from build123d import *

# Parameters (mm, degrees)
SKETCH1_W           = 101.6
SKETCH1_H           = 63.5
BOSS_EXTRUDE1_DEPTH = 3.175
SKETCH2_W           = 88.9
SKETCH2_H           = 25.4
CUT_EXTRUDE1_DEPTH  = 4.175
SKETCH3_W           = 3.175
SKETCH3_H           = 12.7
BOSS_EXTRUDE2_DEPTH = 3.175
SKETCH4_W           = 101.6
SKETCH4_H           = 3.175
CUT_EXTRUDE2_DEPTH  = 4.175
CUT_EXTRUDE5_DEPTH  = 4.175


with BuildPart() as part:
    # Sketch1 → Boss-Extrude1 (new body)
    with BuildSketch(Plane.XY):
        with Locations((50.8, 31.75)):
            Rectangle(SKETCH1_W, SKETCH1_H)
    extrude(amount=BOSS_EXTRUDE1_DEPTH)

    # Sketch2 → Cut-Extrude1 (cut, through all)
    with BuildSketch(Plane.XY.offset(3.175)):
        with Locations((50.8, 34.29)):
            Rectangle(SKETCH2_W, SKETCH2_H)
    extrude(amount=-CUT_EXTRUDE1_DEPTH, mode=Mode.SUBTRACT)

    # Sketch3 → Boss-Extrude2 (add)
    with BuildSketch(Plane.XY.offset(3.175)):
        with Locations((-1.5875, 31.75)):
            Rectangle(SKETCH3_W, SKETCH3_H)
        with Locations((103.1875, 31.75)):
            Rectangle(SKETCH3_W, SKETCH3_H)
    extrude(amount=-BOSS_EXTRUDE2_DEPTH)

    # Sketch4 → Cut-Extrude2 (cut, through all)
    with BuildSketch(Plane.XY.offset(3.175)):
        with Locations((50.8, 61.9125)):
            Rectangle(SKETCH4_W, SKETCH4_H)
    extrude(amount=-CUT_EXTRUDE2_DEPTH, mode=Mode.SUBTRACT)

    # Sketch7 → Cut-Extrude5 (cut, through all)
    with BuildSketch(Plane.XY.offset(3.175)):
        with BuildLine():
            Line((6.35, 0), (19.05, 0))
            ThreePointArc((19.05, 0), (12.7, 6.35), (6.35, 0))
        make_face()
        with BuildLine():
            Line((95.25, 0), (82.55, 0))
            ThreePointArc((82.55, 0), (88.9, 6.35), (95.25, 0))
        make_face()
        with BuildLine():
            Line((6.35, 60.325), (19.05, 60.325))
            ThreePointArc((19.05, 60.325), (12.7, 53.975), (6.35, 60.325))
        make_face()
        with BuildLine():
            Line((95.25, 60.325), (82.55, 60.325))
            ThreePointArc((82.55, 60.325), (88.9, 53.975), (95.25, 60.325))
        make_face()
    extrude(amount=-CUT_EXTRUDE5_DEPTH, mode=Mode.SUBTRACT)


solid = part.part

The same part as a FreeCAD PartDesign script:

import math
import FreeCAD as App
import Part
import Sketcher

V = App.Vector
Q = App.Units.Quantity


def add_polygon(sketch, points):
    """Adds a closed chain of lines whose ends are joined by coincident constraints."""
    first, n = sketch.GeometryCount, len(points)
    for a, b in zip(points, points[1:] + points[:1]):
        sketch.addGeometry(Part.LineSegment(App.Vector(*a, 0), App.Vector(*b, 0)), False)
    for i in range(n):
        sketch.addConstraint(Sketcher.Constraint("Coincident", first + i, 2, first + (i + 1) % n, 1))

doc = App.newDocument("Part")
body = doc.addObject("PartDesign::Body", "Body")

sketch1 = doc.addObject("Sketcher::SketchObject", "Sketch")
body.addObject(sketch1)
sketch1.AttachmentSupport = (doc.XY_Plane, [""])
sketch1.MapMode = "FlatFace"
add_polygon(sketch1, [(0, 64), (0, 0), (102, 0), (102, 64)])
sketch1.addConstraint(Sketcher.Constraint("Vertical", 0))
sketch1.addConstraint(Sketcher.Constraint("Horizontal", 1))
sketch1.addConstraint(Sketcher.Constraint("Vertical", 2))
sketch1.addConstraint(Sketcher.Constraint("Horizontal", 3))
sketch1.addConstraint(Sketcher.Constraint("Coincident", 0, 2, -1, 1))
sketch1.addConstraint(Sketcher.Constraint("DistanceX", 1, 1, 1, 2, Q("4 in")))
sketch1.addConstraint(Sketcher.Constraint("DistanceY", 0, 2, 0, 1, Q("2.5 in")))
pad1 = doc.addObject("PartDesign::Pad", "Pad")
body.addObject(pad1)
pad1.Profile = sketch1
pad1.Length = Q("0.125 in")

sketch2 = doc.addObject("Sketcher::SketchObject", "Sketch001")
body.addObject(sketch2)
sketch2.AttachmentSupport = (doc.XY_Plane, [""])
sketch2.MapMode = "FlatFace"
sketch2.AttachmentOffset = App.Placement(V(0, 0, 0.125 * 25.4), App.Rotation())
add_polygon(sketch2, [(6, 47), (6, 22), (95, 22), (95, 47)])
sketch2.addConstraint(Sketcher.Constraint("Vertical", 0))
sketch2.addConstraint(Sketcher.Constraint("Horizontal", 1))
sketch2.addConstraint(Sketcher.Constraint("Vertical", 2))
sketch2.addConstraint(Sketcher.Constraint("Horizontal", 3))
sketch2.addConstraint(Sketcher.Constraint("DistanceY", 0, 2, 0, 1, Q("1 in")))
sketch2.addConstraint(Sketcher.Constraint("DistanceX", 1, 1, 1, 2, Q("3.5 in")))
sketch2.addConstraint(Sketcher.Constraint("DistanceX", -1, 1, 0, 2, Q("0.25 in")))
sketch2.addConstraint(Sketcher.Constraint("DistanceY", -1, 1, 0, 2, Q("0.85 in")))
pocket1 = doc.addObject("PartDesign::Pocket", "Pocket")
body.addObject(pocket1)
pocket1.Profile = sketch2
pocket1.Type = "ThroughAll"

sketch3 = doc.addObject("Sketcher::SketchObject", "Sketch002")
body.addObject(sketch3)
sketch3.AttachmentSupport = (doc.XY_Plane, [""])
sketch3.MapMode = "FlatFace"
sketch3.AttachmentOffset = App.Placement(V(0, 0, 0.125 * 25.4), App.Rotation())
add_polygon(sketch3, [(-3.2, 38.1), (-3.2, 25.4), (0, 25.4), (0, 38.1)])
add_polygon(sketch3, [(101.6, 38.1), (101.6, 25.4), (104.8, 25.4), (104.8, 38.1)])
sketch3.addConstraint(Sketcher.Constraint("Vertical", 0))
sketch3.addConstraint(Sketcher.Constraint("Horizontal", 1))
sketch3.addConstraint(Sketcher.Constraint("Vertical", 2))
sketch3.addConstraint(Sketcher.Constraint("Horizontal", 3))
sketch3.addConstraint(Sketcher.Constraint("Vertical", 4))
sketch3.addConstraint(Sketcher.Constraint("Horizontal", 5))
sketch3.addConstraint(Sketcher.Constraint("Vertical", 6))
sketch3.addConstraint(Sketcher.Constraint("Horizontal", 7))
sketch3.addConstraint(Sketcher.Constraint("PointOnObject", 1, 2, -2))
sketch3.addConstraint(Sketcher.Constraint("Horizontal", 1, 2, 4, 2))
sketch3.addConstraint(Sketcher.Constraint("Horizontal", 3, 2, 6, 2))
sketch3.addConstraint(Sketcher.Constraint("Equal", 3, 5))
sketch3.addConstraint(Sketcher.Constraint("DistanceY", 0, 2, 0, 1, Q("0.5 in")))
sketch3.addConstraint(Sketcher.Constraint("DistanceY", -1, 1, 0, 2, Q("1 in")))
sketch3.addConstraint(Sketcher.Constraint("DistanceX", -1, 1, 4, 2, Q("4 in")))
sketch3.addConstraint(Sketcher.Constraint("DistanceX", 1, 1, 1, 2, Q("0.125 in")))
pad2 = doc.addObject("PartDesign::Pad", "Pad001")
body.addObject(pad2)
pad2.Profile = sketch3
pad2.Length = Q("0.125 in")
pad2.Reversed = True

sketch4 = doc.addObject("Sketcher::SketchObject", "Sketch003")
body.addObject(sketch4)
sketch4.AttachmentSupport = (doc.XY_Plane, [""])
sketch4.MapMode = "FlatFace"
sketch4.AttachmentOffset = App.Placement(V(0, 0, 0.125 * 25.4), App.Rotation())
add_polygon(sketch4, [(0, 63.5), (0, 60.3), (101.6, 60.3), (101.6, 63.5)])
sketch4.addConstraint(Sketcher.Constraint("Vertical", 0))
sketch4.addConstraint(Sketcher.Constraint("Horizontal", 1))
sketch4.addConstraint(Sketcher.Constraint("Vertical", 2))
sketch4.addConstraint(Sketcher.Constraint("Horizontal", 3))
sketch4.addConstraint(Sketcher.Constraint("PointOnObject", 0, 2, -2))
sketch4.addConstraint(Sketcher.Constraint("DistanceX", 1, 1, 1, 2, Q("4 in")))
sketch4.addConstraint(Sketcher.Constraint("DistanceY", -1, 1, 2, 2, Q("2.5 in")))
sketch4.addConstraint(Sketcher.Constraint("DistanceY", 0, 2, 0, 1, Q("0.125 in")))
pocket2 = doc.addObject("PartDesign::Pocket", "Pocket001")
body.addObject(pocket2)
pocket2.Profile = sketch4
pocket2.Type = "ThroughAll"

sketch5 = doc.addObject("Sketcher::SketchObject", "Sketch004")
body.addObject(sketch5)
sketch5.AttachmentSupport = (doc.XY_Plane, [""])
sketch5.MapMode = "FlatFace"
sketch5.AttachmentOffset = App.Placement(V(0, 0, 0.125 * 25.4), App.Rotation())
sketch5.addGeometry(Part.LineSegment(V(6, 0, 0), V(19, 0, 0)), False)
sketch5.addGeometry(Part.ArcOfCircle(Part.Circle(V(13, 0, 0), V(0, 0, 1), 6), math.radians(0), math.radians(180)), False)
sketch5.addGeometry(Part.LineSegment(V(83, 0, 0), V(95, 0, 0)), False)
sketch5.addGeometry(Part.ArcOfCircle(Part.Circle(V(89, 0, 0), V(0, 0, 1), 6), math.radians(0), math.radians(180)), False)
sketch5.addGeometry(Part.LineSegment(V(19, 60, 0), V(6, 60, 0)), False)
sketch5.addGeometry(Part.ArcOfCircle(Part.Circle(V(13, 60, 0), V(0, 0, 1), 6), math.radians(180), math.radians(360)), False)
sketch5.addGeometry(Part.LineSegment(V(95, 60, 0), V(83, 60, 0)), False)
sketch5.addGeometry(Part.ArcOfCircle(Part.Circle(V(89, 60, 0), V(0, 0, 1), 6), math.radians(180), math.radians(360)), False)
sketch5.addConstraint(Sketcher.Constraint("Coincident", 0, 1, 1, 2))
sketch5.addConstraint(Sketcher.Constraint("Coincident", 1, 1, 0, 2))
sketch5.addConstraint(Sketcher.Constraint("Coincident", 2, 1, 3, 2))
sketch5.addConstraint(Sketcher.Constraint("Coincident", 3, 1, 2, 2))
sketch5.addConstraint(Sketcher.Constraint("Coincident", 4, 1, 5, 2))
sketch5.addConstraint(Sketcher.Constraint("Coincident", 5, 1, 4, 2))
sketch5.addConstraint(Sketcher.Constraint("Coincident", 6, 1, 7, 2))
sketch5.addConstraint(Sketcher.Constraint("Coincident", 7, 1, 6, 2))
sketch5.addConstraint(Sketcher.Constraint("Horizontal", 0))
sketch5.addConstraint(Sketcher.Constraint("Horizontal", 2))
sketch5.addConstraint(Sketcher.Constraint("Horizontal", 4))
sketch5.addConstraint(Sketcher.Constraint("Horizontal", 6))
sketch5.addConstraint(Sketcher.Constraint("Equal", 1, 3))
sketch5.addConstraint(Sketcher.Constraint("Equal", 3, 5))
sketch5.addConstraint(Sketcher.Constraint("Equal", 5, 7))
sketch5.addConstraint(Sketcher.Constraint("PointOnObject", 1, 3, -1))
sketch5.addConstraint(Sketcher.Constraint("PointOnObject", 3, 3, -1))
sketch5.addConstraint(Sketcher.Constraint("PointOnObject", 0, 1, -1))
sketch5.addConstraint(Sketcher.Constraint("PointOnObject", 2, 1, -1))
sketch5.addConstraint(Sketcher.Constraint("Horizontal", 5, 3, 7, 3))
sketch5.addConstraint(Sketcher.Constraint("Horizontal", 7, 3, 4, 1))
sketch5.addConstraint(Sketcher.Constraint("Horizontal", 5, 1, 6, 1))
sketch5.addConstraint(Sketcher.Constraint("Vertical", 1, 3, 5, 3))
sketch5.addConstraint(Sketcher.Constraint("Vertical", 3, 3, 7, 3))
sketch5.addConstraint(Sketcher.Constraint("Radius", 1, Q("0.25 in")))
sketch5.addConstraint(Sketcher.Constraint("DistanceX", 1, 3, 3, 3, Q("3 in")))
sketch5.addConstraint(Sketcher.Constraint("DistanceX", -1, 1, 1, 3, Q("0.5 in")))
sketch5.addConstraint(Sketcher.Constraint("DistanceY", -1, 1, 5, 3, Q("2.375 in")))
pocket3 = doc.addObject("PartDesign::Pocket", "Pocket002")
body.addObject(pocket3)
pocket3.Profile = sketch5
pocket3.Type = "ThroughAll"

doc.recompute()
